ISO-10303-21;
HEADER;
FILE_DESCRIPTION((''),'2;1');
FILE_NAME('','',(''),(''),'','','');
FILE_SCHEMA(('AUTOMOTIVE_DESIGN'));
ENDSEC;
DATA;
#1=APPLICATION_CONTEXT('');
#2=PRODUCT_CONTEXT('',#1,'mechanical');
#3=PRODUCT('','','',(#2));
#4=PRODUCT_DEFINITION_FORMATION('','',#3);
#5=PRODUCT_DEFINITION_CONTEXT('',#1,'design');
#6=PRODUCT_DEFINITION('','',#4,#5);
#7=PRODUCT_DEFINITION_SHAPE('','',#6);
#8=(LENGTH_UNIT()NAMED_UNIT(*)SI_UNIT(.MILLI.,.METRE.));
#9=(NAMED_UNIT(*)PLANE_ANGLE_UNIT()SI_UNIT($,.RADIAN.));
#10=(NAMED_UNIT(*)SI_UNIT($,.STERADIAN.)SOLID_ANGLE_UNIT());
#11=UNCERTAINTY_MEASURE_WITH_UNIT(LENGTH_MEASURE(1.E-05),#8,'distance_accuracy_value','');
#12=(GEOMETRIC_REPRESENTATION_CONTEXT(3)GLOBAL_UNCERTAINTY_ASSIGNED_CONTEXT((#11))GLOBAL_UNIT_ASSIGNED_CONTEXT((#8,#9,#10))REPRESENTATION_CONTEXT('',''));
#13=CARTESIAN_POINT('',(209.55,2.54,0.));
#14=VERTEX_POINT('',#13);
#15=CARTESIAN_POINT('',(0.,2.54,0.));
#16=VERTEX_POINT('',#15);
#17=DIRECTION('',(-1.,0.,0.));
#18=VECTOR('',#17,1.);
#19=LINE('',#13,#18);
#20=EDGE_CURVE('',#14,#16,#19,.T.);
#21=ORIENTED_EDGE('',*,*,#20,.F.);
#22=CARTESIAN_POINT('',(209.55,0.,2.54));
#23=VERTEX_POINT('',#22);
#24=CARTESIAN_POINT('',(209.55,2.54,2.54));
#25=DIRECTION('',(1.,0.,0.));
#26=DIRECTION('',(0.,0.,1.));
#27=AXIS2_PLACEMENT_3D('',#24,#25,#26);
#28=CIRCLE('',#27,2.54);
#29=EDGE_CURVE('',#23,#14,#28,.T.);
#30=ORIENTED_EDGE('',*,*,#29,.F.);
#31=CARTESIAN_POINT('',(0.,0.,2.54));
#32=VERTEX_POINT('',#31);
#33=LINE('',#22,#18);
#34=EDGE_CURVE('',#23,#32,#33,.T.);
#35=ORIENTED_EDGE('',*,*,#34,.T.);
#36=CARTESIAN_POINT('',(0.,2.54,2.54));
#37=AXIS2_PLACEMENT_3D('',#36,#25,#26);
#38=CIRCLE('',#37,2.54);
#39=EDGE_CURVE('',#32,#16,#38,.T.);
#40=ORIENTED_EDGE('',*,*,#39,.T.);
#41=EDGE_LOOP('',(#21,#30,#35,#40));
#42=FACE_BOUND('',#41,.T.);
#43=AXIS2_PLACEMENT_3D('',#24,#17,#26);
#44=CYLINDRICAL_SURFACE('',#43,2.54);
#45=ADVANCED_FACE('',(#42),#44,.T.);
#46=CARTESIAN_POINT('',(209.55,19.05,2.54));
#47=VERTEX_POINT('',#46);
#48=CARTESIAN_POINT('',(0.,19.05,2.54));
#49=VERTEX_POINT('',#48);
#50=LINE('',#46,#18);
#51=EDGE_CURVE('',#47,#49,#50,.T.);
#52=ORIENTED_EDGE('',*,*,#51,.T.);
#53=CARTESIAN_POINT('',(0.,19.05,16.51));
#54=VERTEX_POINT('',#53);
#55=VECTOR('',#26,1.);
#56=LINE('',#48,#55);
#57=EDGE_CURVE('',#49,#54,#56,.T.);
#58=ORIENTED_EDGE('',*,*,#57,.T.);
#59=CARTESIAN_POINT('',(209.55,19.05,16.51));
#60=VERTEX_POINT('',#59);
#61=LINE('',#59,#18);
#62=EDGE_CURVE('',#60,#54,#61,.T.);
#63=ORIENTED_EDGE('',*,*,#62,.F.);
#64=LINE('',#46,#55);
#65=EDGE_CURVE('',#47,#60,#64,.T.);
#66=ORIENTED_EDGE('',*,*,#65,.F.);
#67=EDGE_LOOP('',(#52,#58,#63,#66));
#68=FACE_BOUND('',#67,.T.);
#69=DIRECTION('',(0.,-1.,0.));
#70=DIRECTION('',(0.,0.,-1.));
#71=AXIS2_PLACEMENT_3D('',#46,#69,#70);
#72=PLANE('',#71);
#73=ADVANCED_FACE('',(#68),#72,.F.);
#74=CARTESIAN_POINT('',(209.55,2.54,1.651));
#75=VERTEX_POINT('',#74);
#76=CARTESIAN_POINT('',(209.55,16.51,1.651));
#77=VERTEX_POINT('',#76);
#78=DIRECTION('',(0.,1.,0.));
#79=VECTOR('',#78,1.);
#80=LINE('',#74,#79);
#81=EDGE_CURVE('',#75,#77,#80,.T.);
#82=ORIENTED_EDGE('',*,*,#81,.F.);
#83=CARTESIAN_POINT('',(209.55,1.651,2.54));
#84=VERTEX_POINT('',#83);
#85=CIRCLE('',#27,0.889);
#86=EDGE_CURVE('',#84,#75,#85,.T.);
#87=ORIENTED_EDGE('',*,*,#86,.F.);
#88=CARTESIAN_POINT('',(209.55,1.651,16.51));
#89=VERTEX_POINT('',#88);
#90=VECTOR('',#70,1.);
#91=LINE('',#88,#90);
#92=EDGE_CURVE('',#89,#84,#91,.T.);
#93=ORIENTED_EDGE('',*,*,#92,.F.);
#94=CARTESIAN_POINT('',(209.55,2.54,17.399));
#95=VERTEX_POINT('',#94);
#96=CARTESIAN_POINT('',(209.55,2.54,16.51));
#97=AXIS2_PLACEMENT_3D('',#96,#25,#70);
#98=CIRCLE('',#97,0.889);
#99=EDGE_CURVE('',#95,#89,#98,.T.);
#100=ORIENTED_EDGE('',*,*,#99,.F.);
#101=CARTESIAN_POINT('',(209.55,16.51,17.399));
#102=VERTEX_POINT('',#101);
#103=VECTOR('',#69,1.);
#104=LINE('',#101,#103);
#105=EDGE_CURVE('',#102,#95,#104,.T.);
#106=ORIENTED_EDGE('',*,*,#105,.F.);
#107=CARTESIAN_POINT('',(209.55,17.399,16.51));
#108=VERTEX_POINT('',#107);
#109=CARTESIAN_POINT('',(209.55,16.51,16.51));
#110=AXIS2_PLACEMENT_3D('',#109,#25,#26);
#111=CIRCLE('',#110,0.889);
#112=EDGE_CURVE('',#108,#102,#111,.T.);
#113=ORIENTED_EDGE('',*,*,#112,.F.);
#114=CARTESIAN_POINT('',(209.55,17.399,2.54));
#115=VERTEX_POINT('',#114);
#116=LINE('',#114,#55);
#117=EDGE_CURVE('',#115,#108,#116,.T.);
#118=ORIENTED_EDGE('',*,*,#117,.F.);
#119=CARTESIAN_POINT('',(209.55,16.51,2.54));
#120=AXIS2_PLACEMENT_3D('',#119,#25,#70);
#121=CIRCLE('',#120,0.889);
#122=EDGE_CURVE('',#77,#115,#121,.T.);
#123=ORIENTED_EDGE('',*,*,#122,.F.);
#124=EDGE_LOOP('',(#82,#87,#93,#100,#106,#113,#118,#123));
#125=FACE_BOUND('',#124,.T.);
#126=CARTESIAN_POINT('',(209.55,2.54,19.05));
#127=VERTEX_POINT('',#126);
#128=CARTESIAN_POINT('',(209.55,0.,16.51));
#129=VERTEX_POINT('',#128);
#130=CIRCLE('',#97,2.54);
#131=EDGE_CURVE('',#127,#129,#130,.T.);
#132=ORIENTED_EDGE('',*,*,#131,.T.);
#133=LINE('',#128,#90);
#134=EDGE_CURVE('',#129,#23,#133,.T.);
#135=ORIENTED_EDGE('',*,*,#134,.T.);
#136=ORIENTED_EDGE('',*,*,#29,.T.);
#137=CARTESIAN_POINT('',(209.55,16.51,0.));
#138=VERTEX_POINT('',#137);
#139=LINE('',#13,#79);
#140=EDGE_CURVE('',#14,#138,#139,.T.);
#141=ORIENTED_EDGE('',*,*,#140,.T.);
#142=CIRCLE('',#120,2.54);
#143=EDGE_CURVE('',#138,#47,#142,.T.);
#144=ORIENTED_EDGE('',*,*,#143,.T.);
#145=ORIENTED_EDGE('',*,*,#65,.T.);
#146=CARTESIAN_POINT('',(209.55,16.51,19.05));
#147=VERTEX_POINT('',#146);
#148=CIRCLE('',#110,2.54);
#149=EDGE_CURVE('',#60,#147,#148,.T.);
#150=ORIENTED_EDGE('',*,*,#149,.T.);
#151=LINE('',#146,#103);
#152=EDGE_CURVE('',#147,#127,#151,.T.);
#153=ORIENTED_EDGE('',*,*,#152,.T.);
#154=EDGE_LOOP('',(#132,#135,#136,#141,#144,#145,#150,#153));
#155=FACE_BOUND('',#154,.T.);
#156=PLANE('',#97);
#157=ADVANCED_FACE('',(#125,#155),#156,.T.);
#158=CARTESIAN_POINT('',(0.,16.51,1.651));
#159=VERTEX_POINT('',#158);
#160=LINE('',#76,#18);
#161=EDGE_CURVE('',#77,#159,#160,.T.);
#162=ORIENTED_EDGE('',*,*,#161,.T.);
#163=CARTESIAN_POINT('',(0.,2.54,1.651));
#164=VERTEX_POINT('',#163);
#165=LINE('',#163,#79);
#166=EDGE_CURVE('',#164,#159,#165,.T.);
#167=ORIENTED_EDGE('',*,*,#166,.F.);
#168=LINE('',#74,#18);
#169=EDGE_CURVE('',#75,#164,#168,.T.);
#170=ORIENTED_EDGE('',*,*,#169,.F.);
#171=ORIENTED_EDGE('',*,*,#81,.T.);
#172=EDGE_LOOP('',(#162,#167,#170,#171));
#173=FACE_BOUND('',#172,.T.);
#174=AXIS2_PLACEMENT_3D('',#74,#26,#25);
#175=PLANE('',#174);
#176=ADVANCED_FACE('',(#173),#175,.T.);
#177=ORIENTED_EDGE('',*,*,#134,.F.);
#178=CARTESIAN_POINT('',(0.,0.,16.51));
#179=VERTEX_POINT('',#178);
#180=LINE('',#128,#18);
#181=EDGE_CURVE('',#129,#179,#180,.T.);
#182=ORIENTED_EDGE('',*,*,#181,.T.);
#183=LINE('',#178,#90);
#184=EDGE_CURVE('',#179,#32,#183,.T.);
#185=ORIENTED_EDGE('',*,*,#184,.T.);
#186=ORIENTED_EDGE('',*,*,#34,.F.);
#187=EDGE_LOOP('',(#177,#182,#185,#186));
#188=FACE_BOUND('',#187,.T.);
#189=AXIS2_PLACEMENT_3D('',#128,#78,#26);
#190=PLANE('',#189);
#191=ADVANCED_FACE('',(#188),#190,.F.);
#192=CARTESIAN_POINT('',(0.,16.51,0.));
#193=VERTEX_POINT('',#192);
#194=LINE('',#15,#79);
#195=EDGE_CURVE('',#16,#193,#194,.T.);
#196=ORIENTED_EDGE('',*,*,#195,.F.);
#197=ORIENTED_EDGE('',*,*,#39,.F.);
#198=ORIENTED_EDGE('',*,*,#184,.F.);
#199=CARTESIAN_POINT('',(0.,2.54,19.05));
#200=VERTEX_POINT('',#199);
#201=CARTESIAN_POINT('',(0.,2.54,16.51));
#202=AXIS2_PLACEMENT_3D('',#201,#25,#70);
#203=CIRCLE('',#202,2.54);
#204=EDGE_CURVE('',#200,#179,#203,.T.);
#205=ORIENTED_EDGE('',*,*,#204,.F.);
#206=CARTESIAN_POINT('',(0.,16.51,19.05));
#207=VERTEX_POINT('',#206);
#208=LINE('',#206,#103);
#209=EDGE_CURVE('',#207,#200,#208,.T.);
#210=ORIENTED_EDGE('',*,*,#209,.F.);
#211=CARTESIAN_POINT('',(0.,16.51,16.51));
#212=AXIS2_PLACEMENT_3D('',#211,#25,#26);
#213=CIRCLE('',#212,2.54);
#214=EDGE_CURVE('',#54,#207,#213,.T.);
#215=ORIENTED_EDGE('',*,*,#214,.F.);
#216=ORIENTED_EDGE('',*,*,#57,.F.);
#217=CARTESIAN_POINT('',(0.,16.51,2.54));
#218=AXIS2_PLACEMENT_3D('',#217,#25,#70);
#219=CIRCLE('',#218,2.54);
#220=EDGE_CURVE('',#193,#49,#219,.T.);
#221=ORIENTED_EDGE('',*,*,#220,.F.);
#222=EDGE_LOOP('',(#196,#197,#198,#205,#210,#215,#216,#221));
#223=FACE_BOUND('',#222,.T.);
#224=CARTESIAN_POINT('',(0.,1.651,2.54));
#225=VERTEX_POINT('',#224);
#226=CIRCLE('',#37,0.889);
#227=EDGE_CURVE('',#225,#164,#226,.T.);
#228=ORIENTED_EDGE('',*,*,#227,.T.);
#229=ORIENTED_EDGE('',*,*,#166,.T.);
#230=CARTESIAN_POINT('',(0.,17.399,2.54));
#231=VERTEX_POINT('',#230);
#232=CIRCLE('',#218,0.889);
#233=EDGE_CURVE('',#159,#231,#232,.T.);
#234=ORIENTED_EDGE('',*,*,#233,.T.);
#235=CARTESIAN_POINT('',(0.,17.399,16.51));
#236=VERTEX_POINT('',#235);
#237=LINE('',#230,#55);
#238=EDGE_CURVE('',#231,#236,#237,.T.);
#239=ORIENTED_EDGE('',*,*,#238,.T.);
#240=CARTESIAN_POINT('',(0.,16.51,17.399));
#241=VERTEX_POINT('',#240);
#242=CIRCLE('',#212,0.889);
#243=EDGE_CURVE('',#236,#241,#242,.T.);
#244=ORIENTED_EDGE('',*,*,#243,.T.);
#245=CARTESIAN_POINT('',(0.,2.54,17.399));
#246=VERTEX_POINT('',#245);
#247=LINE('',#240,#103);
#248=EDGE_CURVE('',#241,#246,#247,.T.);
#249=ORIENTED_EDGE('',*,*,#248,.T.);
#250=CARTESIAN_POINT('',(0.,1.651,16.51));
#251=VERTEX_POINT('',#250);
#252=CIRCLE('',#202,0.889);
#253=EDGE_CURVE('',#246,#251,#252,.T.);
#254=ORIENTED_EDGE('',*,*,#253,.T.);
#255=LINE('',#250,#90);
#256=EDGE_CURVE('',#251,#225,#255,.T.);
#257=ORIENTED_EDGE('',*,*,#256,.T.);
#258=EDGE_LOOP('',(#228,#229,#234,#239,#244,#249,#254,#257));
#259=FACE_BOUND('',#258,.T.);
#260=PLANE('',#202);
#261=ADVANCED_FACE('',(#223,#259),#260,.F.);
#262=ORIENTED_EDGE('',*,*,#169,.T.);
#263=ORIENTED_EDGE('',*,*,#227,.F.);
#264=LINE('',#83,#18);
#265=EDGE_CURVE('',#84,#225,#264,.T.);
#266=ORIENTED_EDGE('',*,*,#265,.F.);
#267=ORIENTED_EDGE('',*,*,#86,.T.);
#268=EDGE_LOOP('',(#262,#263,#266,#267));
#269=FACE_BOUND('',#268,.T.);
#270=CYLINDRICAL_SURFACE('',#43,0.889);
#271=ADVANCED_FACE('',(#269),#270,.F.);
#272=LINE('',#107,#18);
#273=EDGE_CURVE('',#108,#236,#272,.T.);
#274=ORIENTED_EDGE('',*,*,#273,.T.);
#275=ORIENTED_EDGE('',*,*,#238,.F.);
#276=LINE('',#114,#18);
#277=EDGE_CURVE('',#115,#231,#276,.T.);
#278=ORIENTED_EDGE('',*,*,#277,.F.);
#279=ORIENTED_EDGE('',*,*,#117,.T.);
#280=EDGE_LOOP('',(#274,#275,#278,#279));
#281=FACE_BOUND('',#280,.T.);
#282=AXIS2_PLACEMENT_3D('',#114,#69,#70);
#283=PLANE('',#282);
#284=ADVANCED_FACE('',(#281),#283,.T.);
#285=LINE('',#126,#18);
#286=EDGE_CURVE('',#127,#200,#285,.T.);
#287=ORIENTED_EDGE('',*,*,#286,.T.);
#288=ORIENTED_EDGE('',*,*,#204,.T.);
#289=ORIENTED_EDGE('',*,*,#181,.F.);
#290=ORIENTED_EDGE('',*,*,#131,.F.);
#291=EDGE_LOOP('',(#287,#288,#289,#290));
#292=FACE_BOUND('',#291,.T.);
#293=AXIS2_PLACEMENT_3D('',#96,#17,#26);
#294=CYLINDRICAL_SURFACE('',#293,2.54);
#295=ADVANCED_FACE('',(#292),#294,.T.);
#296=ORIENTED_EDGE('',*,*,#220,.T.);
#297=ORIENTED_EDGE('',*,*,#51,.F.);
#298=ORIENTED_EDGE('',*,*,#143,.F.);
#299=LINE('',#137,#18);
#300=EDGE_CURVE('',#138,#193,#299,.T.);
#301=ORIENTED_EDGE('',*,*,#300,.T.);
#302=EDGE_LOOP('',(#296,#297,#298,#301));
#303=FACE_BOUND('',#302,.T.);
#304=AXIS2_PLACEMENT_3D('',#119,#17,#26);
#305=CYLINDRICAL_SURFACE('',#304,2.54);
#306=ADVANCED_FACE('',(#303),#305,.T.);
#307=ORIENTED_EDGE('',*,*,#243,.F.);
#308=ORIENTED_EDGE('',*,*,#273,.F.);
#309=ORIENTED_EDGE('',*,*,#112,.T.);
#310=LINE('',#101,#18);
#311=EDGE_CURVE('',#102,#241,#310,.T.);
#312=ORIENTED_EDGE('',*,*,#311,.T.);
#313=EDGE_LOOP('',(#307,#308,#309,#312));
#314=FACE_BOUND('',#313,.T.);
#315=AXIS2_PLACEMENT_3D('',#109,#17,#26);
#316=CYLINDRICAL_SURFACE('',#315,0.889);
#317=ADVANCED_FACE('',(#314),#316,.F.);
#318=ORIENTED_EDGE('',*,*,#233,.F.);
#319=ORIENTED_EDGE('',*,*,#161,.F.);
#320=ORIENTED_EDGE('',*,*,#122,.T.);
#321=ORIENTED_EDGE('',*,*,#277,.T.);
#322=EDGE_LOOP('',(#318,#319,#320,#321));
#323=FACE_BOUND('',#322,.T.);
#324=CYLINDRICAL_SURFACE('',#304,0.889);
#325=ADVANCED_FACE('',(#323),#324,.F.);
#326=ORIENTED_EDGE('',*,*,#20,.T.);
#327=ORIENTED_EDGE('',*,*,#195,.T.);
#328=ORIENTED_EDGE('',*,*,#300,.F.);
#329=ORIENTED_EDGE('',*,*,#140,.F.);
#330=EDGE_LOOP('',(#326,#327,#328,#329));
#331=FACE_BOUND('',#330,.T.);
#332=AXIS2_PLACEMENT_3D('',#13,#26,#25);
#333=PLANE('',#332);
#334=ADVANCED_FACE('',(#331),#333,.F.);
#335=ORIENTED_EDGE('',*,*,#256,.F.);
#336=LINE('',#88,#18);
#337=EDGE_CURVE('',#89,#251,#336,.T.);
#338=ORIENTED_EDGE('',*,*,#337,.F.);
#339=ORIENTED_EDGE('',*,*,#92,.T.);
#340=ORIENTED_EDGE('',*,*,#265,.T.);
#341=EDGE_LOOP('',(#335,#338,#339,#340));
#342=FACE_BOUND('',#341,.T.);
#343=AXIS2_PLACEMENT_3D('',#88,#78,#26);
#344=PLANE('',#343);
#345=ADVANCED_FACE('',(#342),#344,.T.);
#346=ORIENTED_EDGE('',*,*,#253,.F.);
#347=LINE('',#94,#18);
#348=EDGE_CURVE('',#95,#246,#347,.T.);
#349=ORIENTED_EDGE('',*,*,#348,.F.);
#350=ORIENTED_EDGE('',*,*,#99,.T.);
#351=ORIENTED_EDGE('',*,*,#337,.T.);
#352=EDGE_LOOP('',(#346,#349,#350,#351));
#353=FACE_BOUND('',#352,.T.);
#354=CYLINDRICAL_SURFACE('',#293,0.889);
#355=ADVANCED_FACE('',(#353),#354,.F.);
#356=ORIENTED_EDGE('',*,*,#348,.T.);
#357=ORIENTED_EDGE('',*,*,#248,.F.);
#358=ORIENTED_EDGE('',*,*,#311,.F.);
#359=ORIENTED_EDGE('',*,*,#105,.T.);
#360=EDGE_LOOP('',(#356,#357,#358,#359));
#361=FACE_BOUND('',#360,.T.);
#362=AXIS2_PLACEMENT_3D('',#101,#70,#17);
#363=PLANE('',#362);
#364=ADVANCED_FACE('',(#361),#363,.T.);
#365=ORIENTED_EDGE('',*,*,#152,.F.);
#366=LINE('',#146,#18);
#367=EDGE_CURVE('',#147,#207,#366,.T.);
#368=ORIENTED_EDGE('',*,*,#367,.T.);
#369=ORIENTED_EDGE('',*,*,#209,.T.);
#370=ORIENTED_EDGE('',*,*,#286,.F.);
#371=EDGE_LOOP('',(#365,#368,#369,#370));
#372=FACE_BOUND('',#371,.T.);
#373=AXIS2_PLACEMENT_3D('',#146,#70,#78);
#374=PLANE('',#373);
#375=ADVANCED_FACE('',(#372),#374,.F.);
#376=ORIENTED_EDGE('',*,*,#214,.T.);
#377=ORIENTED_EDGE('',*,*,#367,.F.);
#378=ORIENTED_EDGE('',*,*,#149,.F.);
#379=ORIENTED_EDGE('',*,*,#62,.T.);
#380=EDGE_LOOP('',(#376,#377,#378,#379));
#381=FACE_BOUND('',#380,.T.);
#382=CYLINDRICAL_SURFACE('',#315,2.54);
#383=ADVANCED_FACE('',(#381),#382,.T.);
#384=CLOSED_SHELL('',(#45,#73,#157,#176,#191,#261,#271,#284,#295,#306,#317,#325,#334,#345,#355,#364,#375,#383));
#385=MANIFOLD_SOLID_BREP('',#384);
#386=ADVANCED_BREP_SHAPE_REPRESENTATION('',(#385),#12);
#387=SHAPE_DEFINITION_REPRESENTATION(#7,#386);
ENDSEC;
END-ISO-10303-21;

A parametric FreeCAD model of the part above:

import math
import FreeCAD as App
import Part
import Sketcher

V = App.Vector
Q = App.Units.Quantity

doc = App.newDocument("Part")
body = doc.addObject("PartDesign::Body", "Body")

sketch1 = body.newObject("Sketcher::SketchObject", "Sketch")
sketch1.AttachmentSupport = (doc.getObject("YZ_Plane"), [""])
sketch1.MapMode = "FlatFace"
sketch1.addGeometry([
    Part.LineSegment(V(2.5, 0, 0), V(16.5, 0, 0)),
    Part.ArcOfCircle(Part.Circle(V(16.5, 2.5, 0), V(0, 0, 1), 2.5), math.radians(-90), math.radians(0)),
    Part.LineSegment(V(19.1, 2.5, 0), V(19.1, 16.5, 0)),
    Part.ArcOfCircle(Part.Circle(V(16.5, 16.5, 0), V(0, 0, 1), 2.5), math.radians(0), math.radians(90)),
    Part.LineSegment(V(16.5, 19.1, 0), V(2.5, 19.1, 0)),
    Part.ArcOfCircle(Part.Circle(V(2.5, 16.5, 0), V(0, 0, 1), 2.5), math.radians(90), math.radians(180)),
    Part.LineSegment(V(0, 16.5, 0), V(0, 2.5, 0)),
    Part.ArcOfCircle(Part.Circle(V(2.5, 2.5, 0), V(0, 0, 1), 2.5), math.radians(-180), math.radians(-90)),
    Part.LineSegment(V(16.5, 1.7, 0), V(2.5, 1.7, 0)),
    Part.ArcOfCircle(Part.Circle(V(2.5, 2.5, 0), V(0, 0, 1), 0.9), math.radians(-180), math.radians(-90)),
    Part.LineSegment(V(1.7, 2.5, 0), V(1.7, 16.5, 0)),
    Part.ArcOfCircle(Part.Circle(V(2.5, 16.5, 0), V(0, 0, 1), 0.9), math.radians(90), math.radians(180)),
    Part.LineSegment(V(2.5, 17.4, 0), V(16.5, 17.4, 0)),
    Part.ArcOfCircle(Part.Circle(V(16.5, 16.5, 0), V(0, 0, 1), 0.9), math.radians(0), math.radians(90)),
    Part.LineSegment(V(17.4, 16.5, 0), V(17.4, 2.5, 0)),
    Part.ArcOfCircle(Part.Circle(V(16.5, 2.5, 0), V(0, 0, 1), 0.9), math.radians(-90), math.radians(0)),
], False)
sketch1.addConstraint([
    Sketcher.Constraint("Tangent", 0, 2, 1, 1),
    Sketcher.Constraint("Tangent", 1, 2, 2, 1),
    Sketcher.Constraint("Tangent", 2, 2, 3, 1),
    Sketcher.Constraint("Tangent", 3, 2, 4, 1),
    Sketcher.Constraint("Tangent", 4, 2, 5, 1),
    Sketcher.Constraint("Tangent", 5, 2, 6, 1),
    Sketcher.Constraint("Tangent", 6, 2, 7, 1),
    Sketcher.Constraint("Tangent", 7, 2, 0, 1),
    Sketcher.Constraint("Tangent", 8, 2, 9, 2),
    Sketcher.Constraint("Tangent", 9, 1, 10, 1),
    Sketcher.Constraint("Tangent", 10, 2, 11, 2),
    Sketcher.Constraint("Tangent", 11, 1, 12, 1),
    Sketcher.Constraint("Tangent", 12, 2, 13, 2),
    Sketcher.Constraint("Tangent", 13, 1, 14, 1),
    Sketcher.Constraint("Tangent", 14, 2, 15, 2),
    Sketcher.Constraint("Tangent", 15, 1, 8, 1),
    Sketcher.Constraint("Horizontal", 0),
    Sketcher.Constraint("Vertical", 2),
    Sketcher.Constraint("Horizontal", 4),
    Sketcher.Constraint("Vertical", 6),
    Sketcher.Constraint("Horizontal", 8),
    Sketcher.Constraint("Vertical", 10),
    Sketcher.Constraint("Horizontal", 12),
    Sketcher.Constraint("Vertical", 14),
    Sketcher.Constraint("Coincident", 9, 3, 7, 3),
    Sketcher.Constraint("Coincident", 11, 3, 5, 3),
    Sketcher.Constraint("Coincident", 13, 3, 3, 3),
    Sketcher.Constraint("Equal", 1, 3),
    Sketcher.Constraint("Equal", 3, 5),
    Sketcher.Constraint("Equal", 5, 7),
    Sketcher.Constraint("Equal", 13, 15),
    Sketcher.Constraint("PointOnObject", 0, 2, -1),
    Sketcher.Constraint("PointOnObject", 5, 2, -2),
    Sketcher.Constraint("Equal", 12, 2),
    Sketcher.Constraint("Radius", 1, Q("0.1 in")),
    Sketcher.Constraint("Radius", 9, Q("0.035 in")),
    Sketcher.Constraint("DistanceX", 0, 1, 0, 2, Q("0.55 in")),
])
pad1 = body.newObject("PartDesign::Pad", "Pad")
pad1.Profile = sketch1
pad1.Length = Q("8.25 in")

doc.recompute()
